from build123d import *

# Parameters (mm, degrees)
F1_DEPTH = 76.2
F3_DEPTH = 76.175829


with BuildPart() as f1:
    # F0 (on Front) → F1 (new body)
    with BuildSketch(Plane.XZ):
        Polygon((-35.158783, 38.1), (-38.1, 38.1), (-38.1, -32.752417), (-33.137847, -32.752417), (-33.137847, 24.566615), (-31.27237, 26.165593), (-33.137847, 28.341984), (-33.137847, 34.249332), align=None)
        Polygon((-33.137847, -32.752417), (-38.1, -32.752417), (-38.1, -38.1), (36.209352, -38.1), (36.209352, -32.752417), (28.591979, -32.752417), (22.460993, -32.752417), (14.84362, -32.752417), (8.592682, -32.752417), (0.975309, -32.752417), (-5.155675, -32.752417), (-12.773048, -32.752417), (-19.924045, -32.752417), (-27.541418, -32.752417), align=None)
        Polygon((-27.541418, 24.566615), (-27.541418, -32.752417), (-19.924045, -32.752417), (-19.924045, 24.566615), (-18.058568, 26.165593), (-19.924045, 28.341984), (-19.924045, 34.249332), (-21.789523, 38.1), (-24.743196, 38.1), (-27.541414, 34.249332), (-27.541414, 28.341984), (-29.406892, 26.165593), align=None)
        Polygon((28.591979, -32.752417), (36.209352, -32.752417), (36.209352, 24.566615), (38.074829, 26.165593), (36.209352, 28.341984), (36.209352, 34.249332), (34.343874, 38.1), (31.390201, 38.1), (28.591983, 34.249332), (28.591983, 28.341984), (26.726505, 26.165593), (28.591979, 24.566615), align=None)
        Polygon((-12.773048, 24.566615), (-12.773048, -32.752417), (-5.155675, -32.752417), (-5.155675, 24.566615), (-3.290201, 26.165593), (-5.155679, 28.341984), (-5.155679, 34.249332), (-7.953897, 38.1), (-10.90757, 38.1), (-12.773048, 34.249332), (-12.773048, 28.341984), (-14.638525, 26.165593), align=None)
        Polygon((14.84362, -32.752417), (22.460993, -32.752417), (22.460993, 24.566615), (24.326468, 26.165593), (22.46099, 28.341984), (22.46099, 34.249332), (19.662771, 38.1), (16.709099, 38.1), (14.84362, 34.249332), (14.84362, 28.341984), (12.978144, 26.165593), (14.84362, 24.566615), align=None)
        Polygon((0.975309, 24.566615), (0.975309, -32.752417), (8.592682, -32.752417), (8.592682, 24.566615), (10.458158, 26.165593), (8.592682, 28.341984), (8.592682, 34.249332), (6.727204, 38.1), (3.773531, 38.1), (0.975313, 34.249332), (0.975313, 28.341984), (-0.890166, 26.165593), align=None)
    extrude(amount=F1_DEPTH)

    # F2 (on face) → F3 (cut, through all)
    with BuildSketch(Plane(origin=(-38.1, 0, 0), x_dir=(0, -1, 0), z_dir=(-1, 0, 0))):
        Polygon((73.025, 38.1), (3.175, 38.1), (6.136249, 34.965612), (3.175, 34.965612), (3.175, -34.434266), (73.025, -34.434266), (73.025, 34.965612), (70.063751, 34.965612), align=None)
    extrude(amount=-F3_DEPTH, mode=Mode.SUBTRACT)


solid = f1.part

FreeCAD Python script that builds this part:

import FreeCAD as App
import Part
import Sketcher

V = App.Vector
Q = App.Units.Quantity

doc = App.newDocument("Part")
body = doc.addObject("PartDesign::Body", "Body")

sketch1 = doc.addObject("Sketcher::SketchObject", "Sketch")
body.addObject(sketch1)
sketch1.AttachmentSupport = (doc.XZ_Plane, [""])
sketch1.MapMode = "FlatFace"
sketch1.addGeometry([
    Part.LineSegment(V(-35.158783, 38.1, 0), V(-38.1, 38.1, 0)),
    Part.LineSegment(V(-38.1, 38.1, 0), V(-38.1, -38.1, 0)),
    Part.LineSegment(V(-38.1, -38.1, 0), V(36.209352, -38.1, 0)),
    Part.LineSegment(V(36.209352, -38.1, 0), V(36.209352, 24.566615, 0)),
    Part.LineSegment(V(36.209352, 24.566615, 0), V(38.074829, 26.165593, 0)),
    Part.LineSegment(V(38.074829, 26.165593, 0), V(36.209352, 28.341984, 0)),
    Part.LineSegment(V(36.209352, 28.341984, 0), V(36.209352, 34.249332, 0)),
    Part.LineSegment(V(36.209352, 34.249332, 0), V(34.343874, 38.1, 0)),
    Part.LineSegment(V(34.343874, 38.1, 0), V(31.390201, 38.1, 0)),
    Part.LineSegment(V(31.390201, 38.1, 0), V(28.591983, 34.249332, 0)),
    Part.LineSegment(V(28.591983, 34.249332, 0), V(28.591983, 28.341984, 0)),
    Part.LineSegment(V(28.591983, 28.341984, 0), V(26.726505, 26.165593, 0)),
    Part.LineSegment(V(26.726505, 26.165593, 0), V(28.591979, 24.566615, 0)),
    Part.LineSegment(V(28.591979, 24.566615, 0), V(28.591979, -32.752417, 0)),
    Part.LineSegment(V(28.591979, -32.752417, 0), V(22.460993, -32.752417, 0)),
    Part.LineSegment(V(22.460993, -32.752417, 0), V(22.460993, 24.566615, 0)),
    Part.LineSegment(V(22.460993, 24.566615, 0), V(24.326468, 26.165593, 0)),
    Part.LineSegment(V(24.326468, 26.165593, 0), V(22.46099, 28.341984, 0)),
    Part.LineSegment(V(22.46099, 28.341984, 0), V(22.46099, 34.249332, 0)),
    Part.LineSegment(V(22.46099, 34.249332, 0), V(19.662771, 38.1, 0)),
    Part.LineSegment(V(19.662771, 38.1, 0), V(16.709099, 38.1, 0)),
    Part.LineSegment(V(16.709099, 38.1, 0), V(14.84362, 34.249332, 0)),
    Part.LineSegment(V(14.84362, 34.249332, 0), V(14.84362, 28.341984, 0)),
    Part.LineSegment(V(14.84362, 28.341984, 0), V(12.978144, 26.165593, 0)),
    Part.LineSegment(V(12.978144, 26.165593, 0), V(14.84362, 24.566615, 0)),
    Part.LineSegment(V(14.84362, 24.566615, 0), V(14.84362, -32.752417, 0)),
    Part.LineSegment(V(14.84362, -32.752417, 0), V(8.592682, -32.752417, 0)),
    Part.LineSegment(V(8.592682, -32.752417, 0), V(8.592682, 24.566615, 0)),
    Part.LineSegment(V(8.592682, 24.566615, 0), V(10.458158, 26.165593, 0)),
    Part.LineSegment(V(10.458158, 26.165593, 0), V(8.592682, 28.341984, 0)),
    Part.LineSegment(V(8.592682, 28.341984, 0), V(8.592682, 34.249332, 0)),
    Part.LineSegment(V(8.592682, 34.249332, 0), V(6.727204, 38.1, 0)),
    Part.LineSegment(V(6.727204, 38.1, 0), V(3.773531, 38.1, 0)),
    Part.LineSegment(V(3.773531, 38.1, 0), V(0.975313, 34.249332, 0)),
    Part.LineSegment(V(0.975313, 34.249332, 0), V(0.975313, 28.341984, 0)),
    Part.LineSegment(V(0.975313, 28.341984, 0), V(-0.890166, 26.165593, 0)),
    Part.LineSegment(V(-0.890166, 26.165593, 0), V(0.975309, 24.566615, 0)),
    Part.LineSegment(V(0.975309, 24.566615, 0), V(0.975309, -32.752417, 0)),
    Part.LineSegment(V(0.975309, -32.752417, 0), V(-5.155675, -32.752417, 0)),
    Part.LineSegment(V(-5.155675, -32.752417, 0), V(-5.155675, 24.566615, 0)),
    Part.LineSegment(V(-5.155675, 24.566615, 0), V(-3.290201, 26.165593, 0)),
    Part.LineSegment(V(-3.290201, 26.165593, 0), V(-5.155679, 28.341984, 0)),
    Part.LineSegment(V(-5.155679, 28.341984, 0), V(-5.155679, 34.249332, 0)),
    Part.LineSegment(V(-5.155679, 34.249332, 0), V(-7.953897, 38.1, 0)),
    Part.LineSegment(V(-7.953897, 38.1, 0), V(-10.90757, 38.1, 0)),
    Part.LineSegment(V(-10.90757, 38.1, 0), V(-12.773048, 34.249332, 0)),
    Part.LineSegment(V(-12.773048, 34.249332, 0), V(-12.773048, 28.341984, 0)),
    Part.LineSegment(V(-12.773048, 28.341984, 0), V(-14.638525, 26.165593, 0)),
    Part.LineSegment(V(-14.638525, 26.165593, 0), V(-12.773048, 24.566615, 0)),
    Part.LineSegment(V(-12.773048, 24.566615, 0), V(-12.773048, -32.752417, 0)),
    Part.LineSegment(V(-12.773048, -32.752417, 0), V(-19.924045, -32.752417, 0)),
    Part.LineSegment(V(-19.924045, -32.752417, 0), V(-19.924045, 24.566615, 0)),
    Part.LineSegment(V(-19.924045, 24.566615, 0), V(-18.058568, 26.165593, 0)),
    Part.LineSegment(V(-18.058568, 26.165593, 0), V(-19.924045, 28.341984, 0)),
    Part.LineSegment(V(-19.924045, 28.341984, 0), V(-19.924045, 34.249332, 0)),
    Part.LineSegment(V(-19.924045, 34.249332, 0), V(-21.789523, 38.1, 0)),
    Part.LineSegment(V(-21.789523, 38.1, 0), V(-24.743196, 38.1, 0)),
    Part.LineSegment(V(-24.743196, 38.1, 0), V(-27.541414, 34.249332, 0)),
    Part.LineSegment(V(-27.541414, 34.249332, 0), V(-27.541414, 28.341984, 0)),
    Part.LineSegment(V(-27.541414, 28.341984, 0), V(-29.406892, 26.165593, 0)),
    Part.LineSegment(V(-29.406892, 26.165593, 0), V(-27.541418, 24.566615, 0)),
    Part.LineSegment(V(-27.541418, 24.566615, 0), V(-27.541418, -32.752417, 0)),
    Part.LineSegment(V(-27.541418, -32.752417, 0), V(-33.137847, -32.752417, 0)),
    Part.LineSegment(V(-33.137847, -32.752417, 0), V(-33.137847, 24.566615, 0)),
    Part.LineSegment(V(-33.137847, 24.566615, 0), V(-31.27237, 26.165593, 0)),
    Part.LineSegment(V(-31.27237, 26.165593, 0), V(-33.137847, 28.341984, 0)),
    Part.LineSegment(V(-33.137847, 28.341984, 0), V(-33.137847, 34.249332, 0)),
    Part.LineSegment(V(-33.137847, 34.249332, 0), V(-35.158783, 38.1, 0)),
], False)
sketch1.addConstraint([
    Sketcher.Constraint("Coincident", 0, 2, 1, 1),
    Sketcher.Constraint("Coincident", 1, 2, 2, 1),
    Sketcher.Constraint("Coincident", 2, 2, 3, 1),
    Sketcher.Constraint("Coincident", 3, 2, 4, 1),
    Sketcher.Constraint("Coincident", 4, 2, 5, 1),
    Sketcher.Constraint("Coincident", 5, 2, 6, 1),
    Sketcher.Constraint("Coincident", 6, 2, 7, 1),
    Sketcher.Constraint("Coincident", 7, 2, 8, 1),
    Sketcher.Constraint("Coincident", 8, 2, 9, 1),
    Sketcher.Constraint("Coincident", 9, 2, 10, 1),
    Sketcher.Constraint("Coincident", 10, 2, 11, 1),
    Sketcher.Constraint("Coincident", 11, 2, 12, 1),
    Sketcher.Constraint("Coincident", 12, 2, 13, 1),
    Sketcher.Constraint("Coincident", 13, 2, 14, 1),
    Sketcher.Constraint("Coincident", 14, 2, 15, 1),
    Sketcher.Constraint("Coincident", 15, 2, 16, 1),
    Sketcher.Constraint("Coincident", 16, 2, 17, 1),
    Sketcher.Constraint("Coincident", 17, 2, 18, 1),
    Sketcher.Constraint("Coincident", 18, 2, 19, 1),
    Sketcher.Constraint("Coincident", 19, 2, 20, 1),
    Sketcher.Constraint("Coincident", 20, 2, 21, 1),
    Sketcher.Constraint("Coincident", 21, 2, 22, 1),
    Sketcher.Constraint("Coincident", 22, 2, 23, 1),
    Sketcher.Constraint("Coincident", 23, 2, 24, 1),
    Sketcher.Constraint("Coincident", 24, 2, 25, 1),
    Sketcher.Constraint("Coincident", 25, 2, 26, 1),
    Sketcher.Constraint("Coincident", 26, 2, 27, 1),
    Sketcher.Constraint("Coincident", 27, 2, 28, 1),
    Sketcher.Constraint("Coincident", 28, 2, 29, 1),
    Sketcher.Constraint("Coincident", 29, 2, 30, 1),
    Sketcher.Constraint("Coincident", 30, 2, 31, 1),
    Sketcher.Constraint("Coincident", 31, 2, 32, 1),
    Sketcher.Constraint("Coincident", 32, 2, 33, 1),
    Sketcher.Constraint("Coincident", 33, 2, 34, 1),
    Sketcher.Constraint("Coincident", 34, 2, 35, 1),
    Sketcher.Constraint("Coincident", 35, 2, 36, 1),
    Sketcher.Constraint("Coincident", 36, 2, 37, 1),
    Sketcher.Constraint("Coincident", 37, 2, 38, 1),
    Sketcher.Constraint("Coincident", 38, 2, 39, 1),
    Sketcher.Constraint("Coincident", 39, 2, 40, 1),
    Sketcher.Constraint("Coincident", 40, 2, 41, 1),
    Sketcher.Constraint("Coincident", 41, 2, 42, 1),
    Sketcher.Constraint("Coincident", 42, 2, 43, 1),
    Sketcher.Constraint("Coincident", 43, 2, 44, 1),
    Sketcher.Constraint("Coincident", 44, 2, 45, 1),
    Sketcher.Constraint("Coincident", 45, 2, 46, 1),
    Sketcher.Constraint("Coincident", 46, 2, 47, 1),
    Sketcher.Constraint("Coincident", 47, 2, 48, 1),
    Sketcher.Constraint("Coincident", 48, 2, 49, 1),
    Sketcher.Constraint("Coincident", 49, 2, 50, 1),
    Sketcher.Constraint("Coincident", 50, 2, 51, 1),
    Sketcher.Constraint("Coincident", 51, 2, 52, 1),
    Sketcher.Constraint("Coincident", 52, 2, 53, 1),
    Sketcher.Constraint("Coincident", 53, 2, 54, 1),
    Sketcher.Constraint("Coincident", 54, 2, 55, 1),
    Sketcher.Constraint("Coincident", 55, 2, 56, 1),
    Sketcher.Constraint("Coincident", 56, 2, 57, 1),
    Sketcher.Constraint("Coincident", 57, 2, 58, 1),
    Sketcher.Constraint("Coincident", 58, 2, 59, 1),
    Sketcher.Constraint("Coincident", 59, 2, 60, 1),
    Sketcher.Constraint("Coincident", 60, 2, 61, 1),
    Sketcher.Constraint("Coincident", 61, 2, 62, 1),
    Sketcher.Constraint("Coincident", 62, 2, 63, 1),
    Sketcher.Constraint("Coincident", 63, 2, 64, 1),
    Sketcher.Constraint("Coincident", 64, 2, 65, 1),
    Sketcher.Constraint("Coincident", 65, 2, 66, 1),
    Sketcher.Constraint("Coincident", 66, 2, 67, 1),
    Sketcher.Constraint("Coincident", 67, 2, 0, 1),
    Sketcher.Constraint("Horizontal", 0),
    Sketcher.Constraint("Vertical", 1),
    Sketcher.Constraint("Horizontal", 2),
    Sketcher.Constraint("Vertical", 3),
    Sketcher.Constraint("Vertical", 6),
    Sketcher.Constraint("Horizontal", 8),
    Sketcher.Constraint("Vertical", 10),
    Sketcher.Constraint("Vertical", 13),
    Sketcher.Constraint("Horizontal", 14),
    Sketcher.Constraint("Vertical", 15),
    Sketcher.Constraint("Vertical", 18),
    Sketcher.Constraint("Horizontal", 20),
    Sketcher.Constraint("Vertical", 22),
    Sketcher.Constraint("Vertical", 25),
    Sketcher.Constraint("Horizontal", 26),
    Sketcher.Constraint("Vertical", 27),
    Sketcher.Constraint("Vertical", 30),
    Sketcher.Constraint("Horizontal", 32),
    Sketcher.Constraint("Vertical", 34),
    Sketcher.Constraint("Vertical", 37),
    Sketcher.Constraint("Horizontal", 38),
    Sketcher.Constraint("Vertical", 39),
    Sketcher.Constraint("Vertical", 42),
    Sketcher.Constraint("Horizontal", 44),
    Sketcher.Constraint("Vertical", 46),
    Sketcher.Constraint("Vertical", 49),
    Sketcher.Constraint("Horizontal", 50),
    Sketcher.Constraint("Vertical", 51),
    Sketcher.Constraint("Vertical", 54),
    Sketcher.Constraint("Horizontal", 56),
    Sketcher.Constraint("Vertical", 58),
    Sketcher.Constraint("Vertical", 61),
    Sketcher.Constraint("Horizontal", 62),
    Sketcher.Constraint("Vertical", 63),
    Sketcher.Constraint("Vertical", 66),
    Sketcher.Constraint("Perpendicular", 4, 5),
    Sketcher.Constraint("Perpendicular", 11, 12),
    Sketcher.Constraint("Perpendicular", 5, 16),
    Sketcher.Constraint("Perpendicular", 16, 17),
    Sketcher.Constraint("Perpendicular", 12, 23),
    Sketcher.Constraint("Perpendicular", 23, 24),
    Sketcher.Constraint("Perpendicular", 17, 28),
    Sketcher.Constraint("Perpendicular", 28, 29),
    Sketcher.Constraint("Parallel", 7, 31),
    Sketcher.Constraint("Parallel", 9, 33),
    Sketcher.Constraint("Perpendicular", 24, 35),
    Sketcher.Constraint("Perpendicular", 35, 36),
    Sketcher.Constraint("Perpendicular", 29, 40),
    Sketcher.Constraint("Perpendicular", 40, 41),
    Sketcher.Constraint("Parallel", 19, 43),
    Sketcher.Constraint("Parallel", 21, 45),
    Sketcher.Constraint("Perpendicular", 36, 47),
    Sketcher.Constraint("Perpendicular", 47, 48),
    Sketcher.Constraint("Perpendicular", 41, 52),
    Sketcher.Constraint("Perpendicular", 52, 53),
    Sketcher.Constraint("Parallel", 31, 55),
    Sketcher.Constraint("Parallel", 33, 57),
    Sketcher.Constraint("Perpendicular", 48, 59),
    Sketcher.Constraint("Perpendicular", 59, 60),
    Sketcher.Constraint("Perpendicular", 53, 64),
    Sketcher.Constraint("Perpendicular", 64, 65),
    Sketcher.Constraint("Horizontal", 0, 2, 7, 2),
    Sketcher.Constraint("Horizontal", 6, 2, 9, 2),
    Sketcher.Constraint("Horizontal", 5, 2, 10, 2),
    Sketcher.Constraint("Horizontal", 4, 2, 11, 2),
    Sketcher.Constraint("Horizontal", 3, 2, 12, 2),
    Sketcher.Constraint("Horizontal", 12, 2, 15, 2),
    Sketcher.Constraint("Horizontal", 11, 2, 16, 2),
    Sketcher.Constraint("Horizontal", 10, 2, 17, 2),
    Sketcher.Constraint("Horizontal", 9, 2, 18, 2),
    Sketcher.Constraint("Horizontal", 8, 2, 19, 2),
    Sketcher.Constraint("Horizontal", 18, 2, 21, 2),
    Sketcher.Constraint("Horizontal", 17, 2, 22, 2),
    Sketcher.Constraint("Horizontal", 16, 2, 23, 2),
    Sketcher.Constraint("Horizontal", 15, 2, 24, 2),
    Sketcher.Constraint("Horizontal", 14, 2, 25, 2),
    Sketcher.Constraint("Horizontal", 24, 2, 27, 2),
    Sketcher.Constraint("Horizontal", 23, 2, 28, 2),
    Sketcher.Constraint("Horizontal", 22, 2, 29, 2),
    Sketcher.Constraint("Horizontal", 21, 2, 30, 2),
    Sketcher.Constraint("Horizontal", 20, 2, 31, 2),
    Sketcher.Constraint("Horizontal", 30, 2, 33, 2),
    Sketcher.Constraint("Horizontal", 29, 2, 34, 2),
    Sketcher.Constraint("Horizontal", 28, 2, 35, 2),
    Sketcher.Constraint("Horizontal", 27, 2, 36, 2),
    Sketcher.Constraint("Horizontal", 26, 2, 37, 2),
    Sketcher.Constraint("Horizontal", 36, 2, 39, 2),
    Sketcher.Constraint("Horizontal", 35, 2, 40, 2),
    Sketcher.Constraint("Horizontal", 34, 2, 41, 2),
    Sketcher.Constraint("Horizontal", 33, 2, 42, 2),
    Sketcher.Constraint("Horizontal", 32, 2, 43, 2),
    Sketcher.Constraint("Horizontal", 42, 2, 45, 2),
    Sketcher.Constraint("Horizontal", 41, 2, 46, 2),
    Sketcher.Constraint("Horizontal", 40, 2, 47, 2),
    Sketcher.Constraint("Horizontal", 39, 2, 48, 2),
    Sketcher.Constraint("Horizontal", 38, 2, 49, 2),
    Sketcher.Constraint("Horizontal", 48, 2, 51, 2),
    Sketcher.Constraint("Horizontal", 47, 2, 52, 2),
    Sketcher.Constraint("Horizontal", 46, 2, 53, 2),
    Sketcher.Constraint("Horizontal", 45, 2, 54, 2),
    Sketcher.Constraint("Horizontal", 44, 2, 55, 2),
    Sketcher.Constraint("Horizontal", 54, 2, 57, 2),
    Sketcher.Constraint("Horizontal", 53, 2, 58, 2),
    Sketcher.Constraint("Horizontal", 52, 2, 59, 2),
    Sketcher.Constraint("Horizontal", 51, 2, 60, 2),
    Sketcher.Constraint("Horizontal", 50, 2, 61, 2),
    Sketcher.Constraint("Horizontal", 60, 2, 63, 2),
    Sketcher.Constraint("Horizontal", 59, 2, 64, 2),
    Sketcher.Constraint("Horizontal", 58, 2, 65, 2),
    Sketcher.Constraint("Horizontal", 57, 2, 66, 2),
    Sketcher.Constraint("Vertical", 3, 2, 5, 2),
    Sketcher.Constraint("Vertical", 22, 2, 24, 2),
    Sketcher.Constraint("Equal", 8, 20),
    Sketcher.Constraint("Equal", 20, 32),
    Sketcher.Constraint("Equal", 32, 44),
    Sketcher.Constraint("Equal", 44, 56),
    Sketcher.Constraint("Equal", 9, 19),
    Sketcher.Constraint("Equal", 7, 21),
    Sketcher.Constraint("DistanceY", 1, 2, 1, 1, Q("3 in")),
    Sketcher.Constraint("DistanceX", 0, 2, -1, 1, Q("1.5 in")),
    Sketcher.Constraint("DistanceY", -1, 1, 0, 2, Q("1.5 in")),
    Sketcher.Constraint("DistanceX", 26, 2, 26, 1, Q("0.2460999 in")),
    Sketcher.Constraint("DistanceX", 62, 2, 62, 1, Q("5.596429 mm")),
    Sketcher.Constraint("DistanceY", 6, 1, 6, 2, Q("5.907348 mm")),
    Sketcher.Constraint("DistanceX", -1, 1, 8, 2, Q("31.390201 mm")),
    Sketcher.Constraint("DistanceX", -1, 1, 20, 2, Q("16.709099 mm")),
    Sketcher.Constraint("DistanceX", 40, 2, -1, 1, Q("3.290201 mm")),
    Sketcher.Constraint("DistanceX", 0, 2, 0, 1, Q("2.941217 mm")),
    Sketcher.Constraint("DistanceX", 2, 1, 2, 2, Q("74.309352 mm")),
    Sketcher.Constraint("DistanceX", 8, 2, 8, 1, Q("2.953673 mm")),
    Sketcher.Constraint("DistanceX", 14, 2, 14, 1, Q("6.130986 mm")),
    Sketcher.Constraint("DistanceX", 38, 2, 38, 1, Q("6.130984 mm")),
    Sketcher.Constraint("DistanceX", 50, 2, 50, 1, Q("7.150997 mm")),
    Sketcher.Constraint("DistanceY", 3, 1, 3, 2, Q("62.666615 mm")),
    Sketcher.Constraint("DistanceY", 13, 2, 13, 1, Q("57.319032 mm")),
    Sketcher.Constraint("Distance", 4, Q("2.456977 mm")),
])
pad1 = doc.addObject("PartDesign::Pad", "Pad")
body.addObject(pad1)
pad1.Profile = sketch1
pad1.Length = Q("3 in")

sketch2 = doc.addObject("Sketcher::SketchObject", "Sketch001")
body.addObject(sketch2)
sketch2.AttachmentSupport = (doc.YZ_Plane, [""])
sketch2.MapMode = "FlatFace"
sketch2.AttachmentOffset = App.Placement(V(0, 0, -1.5 * 25.4), App.Rotation())
sketch2.addGeometry([
    Part.LineSegment(V(-73.025, 38.1, 0), V(-3.175, 38.1, 0)),
    Part.LineSegment(V(-3.175, 38.1, 0), V(-6.136249, 34.965612, 0)),
    Part.LineSegment(V(-6.136249, 34.965612, 0), V(-3.175, 34.965612, 0)),
    Part.LineSegment(V(-3.175, 34.965612, 0), V(-3.175, -34.434266, 0)),
    Part.LineSegment(V(-3.175, -34.434266, 0), V(-73.025, -34.434266, 0)),
    Part.LineSegment(V(-73.025, -34.434266, 0), V(-73.025, 34.965612, 0)),
    Part.LineSegment(V(-73.025, 34.965612, 0), V(-70.063751, 34.965612, 0)),
    Part.LineSegment(V(-70.063751, 34.965612, 0), V(-73.025, 38.1, 0)),
], False)
sketch2.addConstraint([
    Sketcher.Constraint("Coincident", 0, 2, 1, 1),
    Sketcher.Constraint("Coincident", 1, 2, 2, 1),
    Sketcher.Constraint("Coincident", 2, 2, 3, 1),
    Sketcher.Constraint("Coincident", 3, 2, 4, 1),
    Sketcher.Constraint("Coincident", 4, 2, 5, 1),
    Sketcher.Constraint("Coincident", 5, 2, 6, 1),
    Sketcher.Constraint("Coincident", 6, 2, 7, 1),
    Sketcher.Constraint("Coincident", 7, 2, 0, 1),
    Sketcher.Constraint("Horizontal", 0),
    Sketcher.Constraint("Horizontal", 2),
    Sketcher.Constraint("Vertical", 3),
    Sketcher.Constraint("Horizontal", 4),
    Sketcher.Constraint("Vertical", 5),
    Sketcher.Constraint("Horizontal", 6),
    Sketcher.Constraint("Horizontal", 2, 2, 5, 2),
    Sketcher.Constraint("Vertical", 0, 2, 2, 2),
    Sketcher.Constraint("Vertical", 5, 2, 7, 2),
    Sketcher.Constraint("Equal", 2, 6),
    Sketcher.Constraint("DistanceX", 0, 1, 0, 2, Q("2.75 in")),
    Sketcher.Constraint("DistanceY", -1, 1, 0, 2, Q("1.5 in")),
    Sketcher.Constraint("DistanceX", 0, 2, -1, 1, Q("0.125 in")),
    Sketcher.Constraint("DistanceX", 2, 1, 2, 2, Q("2.961249 mm")),
    Sketcher.Constraint("DistanceY", 3, 2, 3, 1, Q("69.399878 mm")),
    Sketcher.Constraint("DistanceY", 1, 2, 0, 2, Q("3.134388 mm")),
])
pocket1 = doc.addObject("PartDesign::Pocket", "Pocket")
body.addObject(pocket1)
pocket1.Profile = sketch2
pocket1.Type = "ThroughAll"
pocket1.Reversed = True

doc.recompute()
